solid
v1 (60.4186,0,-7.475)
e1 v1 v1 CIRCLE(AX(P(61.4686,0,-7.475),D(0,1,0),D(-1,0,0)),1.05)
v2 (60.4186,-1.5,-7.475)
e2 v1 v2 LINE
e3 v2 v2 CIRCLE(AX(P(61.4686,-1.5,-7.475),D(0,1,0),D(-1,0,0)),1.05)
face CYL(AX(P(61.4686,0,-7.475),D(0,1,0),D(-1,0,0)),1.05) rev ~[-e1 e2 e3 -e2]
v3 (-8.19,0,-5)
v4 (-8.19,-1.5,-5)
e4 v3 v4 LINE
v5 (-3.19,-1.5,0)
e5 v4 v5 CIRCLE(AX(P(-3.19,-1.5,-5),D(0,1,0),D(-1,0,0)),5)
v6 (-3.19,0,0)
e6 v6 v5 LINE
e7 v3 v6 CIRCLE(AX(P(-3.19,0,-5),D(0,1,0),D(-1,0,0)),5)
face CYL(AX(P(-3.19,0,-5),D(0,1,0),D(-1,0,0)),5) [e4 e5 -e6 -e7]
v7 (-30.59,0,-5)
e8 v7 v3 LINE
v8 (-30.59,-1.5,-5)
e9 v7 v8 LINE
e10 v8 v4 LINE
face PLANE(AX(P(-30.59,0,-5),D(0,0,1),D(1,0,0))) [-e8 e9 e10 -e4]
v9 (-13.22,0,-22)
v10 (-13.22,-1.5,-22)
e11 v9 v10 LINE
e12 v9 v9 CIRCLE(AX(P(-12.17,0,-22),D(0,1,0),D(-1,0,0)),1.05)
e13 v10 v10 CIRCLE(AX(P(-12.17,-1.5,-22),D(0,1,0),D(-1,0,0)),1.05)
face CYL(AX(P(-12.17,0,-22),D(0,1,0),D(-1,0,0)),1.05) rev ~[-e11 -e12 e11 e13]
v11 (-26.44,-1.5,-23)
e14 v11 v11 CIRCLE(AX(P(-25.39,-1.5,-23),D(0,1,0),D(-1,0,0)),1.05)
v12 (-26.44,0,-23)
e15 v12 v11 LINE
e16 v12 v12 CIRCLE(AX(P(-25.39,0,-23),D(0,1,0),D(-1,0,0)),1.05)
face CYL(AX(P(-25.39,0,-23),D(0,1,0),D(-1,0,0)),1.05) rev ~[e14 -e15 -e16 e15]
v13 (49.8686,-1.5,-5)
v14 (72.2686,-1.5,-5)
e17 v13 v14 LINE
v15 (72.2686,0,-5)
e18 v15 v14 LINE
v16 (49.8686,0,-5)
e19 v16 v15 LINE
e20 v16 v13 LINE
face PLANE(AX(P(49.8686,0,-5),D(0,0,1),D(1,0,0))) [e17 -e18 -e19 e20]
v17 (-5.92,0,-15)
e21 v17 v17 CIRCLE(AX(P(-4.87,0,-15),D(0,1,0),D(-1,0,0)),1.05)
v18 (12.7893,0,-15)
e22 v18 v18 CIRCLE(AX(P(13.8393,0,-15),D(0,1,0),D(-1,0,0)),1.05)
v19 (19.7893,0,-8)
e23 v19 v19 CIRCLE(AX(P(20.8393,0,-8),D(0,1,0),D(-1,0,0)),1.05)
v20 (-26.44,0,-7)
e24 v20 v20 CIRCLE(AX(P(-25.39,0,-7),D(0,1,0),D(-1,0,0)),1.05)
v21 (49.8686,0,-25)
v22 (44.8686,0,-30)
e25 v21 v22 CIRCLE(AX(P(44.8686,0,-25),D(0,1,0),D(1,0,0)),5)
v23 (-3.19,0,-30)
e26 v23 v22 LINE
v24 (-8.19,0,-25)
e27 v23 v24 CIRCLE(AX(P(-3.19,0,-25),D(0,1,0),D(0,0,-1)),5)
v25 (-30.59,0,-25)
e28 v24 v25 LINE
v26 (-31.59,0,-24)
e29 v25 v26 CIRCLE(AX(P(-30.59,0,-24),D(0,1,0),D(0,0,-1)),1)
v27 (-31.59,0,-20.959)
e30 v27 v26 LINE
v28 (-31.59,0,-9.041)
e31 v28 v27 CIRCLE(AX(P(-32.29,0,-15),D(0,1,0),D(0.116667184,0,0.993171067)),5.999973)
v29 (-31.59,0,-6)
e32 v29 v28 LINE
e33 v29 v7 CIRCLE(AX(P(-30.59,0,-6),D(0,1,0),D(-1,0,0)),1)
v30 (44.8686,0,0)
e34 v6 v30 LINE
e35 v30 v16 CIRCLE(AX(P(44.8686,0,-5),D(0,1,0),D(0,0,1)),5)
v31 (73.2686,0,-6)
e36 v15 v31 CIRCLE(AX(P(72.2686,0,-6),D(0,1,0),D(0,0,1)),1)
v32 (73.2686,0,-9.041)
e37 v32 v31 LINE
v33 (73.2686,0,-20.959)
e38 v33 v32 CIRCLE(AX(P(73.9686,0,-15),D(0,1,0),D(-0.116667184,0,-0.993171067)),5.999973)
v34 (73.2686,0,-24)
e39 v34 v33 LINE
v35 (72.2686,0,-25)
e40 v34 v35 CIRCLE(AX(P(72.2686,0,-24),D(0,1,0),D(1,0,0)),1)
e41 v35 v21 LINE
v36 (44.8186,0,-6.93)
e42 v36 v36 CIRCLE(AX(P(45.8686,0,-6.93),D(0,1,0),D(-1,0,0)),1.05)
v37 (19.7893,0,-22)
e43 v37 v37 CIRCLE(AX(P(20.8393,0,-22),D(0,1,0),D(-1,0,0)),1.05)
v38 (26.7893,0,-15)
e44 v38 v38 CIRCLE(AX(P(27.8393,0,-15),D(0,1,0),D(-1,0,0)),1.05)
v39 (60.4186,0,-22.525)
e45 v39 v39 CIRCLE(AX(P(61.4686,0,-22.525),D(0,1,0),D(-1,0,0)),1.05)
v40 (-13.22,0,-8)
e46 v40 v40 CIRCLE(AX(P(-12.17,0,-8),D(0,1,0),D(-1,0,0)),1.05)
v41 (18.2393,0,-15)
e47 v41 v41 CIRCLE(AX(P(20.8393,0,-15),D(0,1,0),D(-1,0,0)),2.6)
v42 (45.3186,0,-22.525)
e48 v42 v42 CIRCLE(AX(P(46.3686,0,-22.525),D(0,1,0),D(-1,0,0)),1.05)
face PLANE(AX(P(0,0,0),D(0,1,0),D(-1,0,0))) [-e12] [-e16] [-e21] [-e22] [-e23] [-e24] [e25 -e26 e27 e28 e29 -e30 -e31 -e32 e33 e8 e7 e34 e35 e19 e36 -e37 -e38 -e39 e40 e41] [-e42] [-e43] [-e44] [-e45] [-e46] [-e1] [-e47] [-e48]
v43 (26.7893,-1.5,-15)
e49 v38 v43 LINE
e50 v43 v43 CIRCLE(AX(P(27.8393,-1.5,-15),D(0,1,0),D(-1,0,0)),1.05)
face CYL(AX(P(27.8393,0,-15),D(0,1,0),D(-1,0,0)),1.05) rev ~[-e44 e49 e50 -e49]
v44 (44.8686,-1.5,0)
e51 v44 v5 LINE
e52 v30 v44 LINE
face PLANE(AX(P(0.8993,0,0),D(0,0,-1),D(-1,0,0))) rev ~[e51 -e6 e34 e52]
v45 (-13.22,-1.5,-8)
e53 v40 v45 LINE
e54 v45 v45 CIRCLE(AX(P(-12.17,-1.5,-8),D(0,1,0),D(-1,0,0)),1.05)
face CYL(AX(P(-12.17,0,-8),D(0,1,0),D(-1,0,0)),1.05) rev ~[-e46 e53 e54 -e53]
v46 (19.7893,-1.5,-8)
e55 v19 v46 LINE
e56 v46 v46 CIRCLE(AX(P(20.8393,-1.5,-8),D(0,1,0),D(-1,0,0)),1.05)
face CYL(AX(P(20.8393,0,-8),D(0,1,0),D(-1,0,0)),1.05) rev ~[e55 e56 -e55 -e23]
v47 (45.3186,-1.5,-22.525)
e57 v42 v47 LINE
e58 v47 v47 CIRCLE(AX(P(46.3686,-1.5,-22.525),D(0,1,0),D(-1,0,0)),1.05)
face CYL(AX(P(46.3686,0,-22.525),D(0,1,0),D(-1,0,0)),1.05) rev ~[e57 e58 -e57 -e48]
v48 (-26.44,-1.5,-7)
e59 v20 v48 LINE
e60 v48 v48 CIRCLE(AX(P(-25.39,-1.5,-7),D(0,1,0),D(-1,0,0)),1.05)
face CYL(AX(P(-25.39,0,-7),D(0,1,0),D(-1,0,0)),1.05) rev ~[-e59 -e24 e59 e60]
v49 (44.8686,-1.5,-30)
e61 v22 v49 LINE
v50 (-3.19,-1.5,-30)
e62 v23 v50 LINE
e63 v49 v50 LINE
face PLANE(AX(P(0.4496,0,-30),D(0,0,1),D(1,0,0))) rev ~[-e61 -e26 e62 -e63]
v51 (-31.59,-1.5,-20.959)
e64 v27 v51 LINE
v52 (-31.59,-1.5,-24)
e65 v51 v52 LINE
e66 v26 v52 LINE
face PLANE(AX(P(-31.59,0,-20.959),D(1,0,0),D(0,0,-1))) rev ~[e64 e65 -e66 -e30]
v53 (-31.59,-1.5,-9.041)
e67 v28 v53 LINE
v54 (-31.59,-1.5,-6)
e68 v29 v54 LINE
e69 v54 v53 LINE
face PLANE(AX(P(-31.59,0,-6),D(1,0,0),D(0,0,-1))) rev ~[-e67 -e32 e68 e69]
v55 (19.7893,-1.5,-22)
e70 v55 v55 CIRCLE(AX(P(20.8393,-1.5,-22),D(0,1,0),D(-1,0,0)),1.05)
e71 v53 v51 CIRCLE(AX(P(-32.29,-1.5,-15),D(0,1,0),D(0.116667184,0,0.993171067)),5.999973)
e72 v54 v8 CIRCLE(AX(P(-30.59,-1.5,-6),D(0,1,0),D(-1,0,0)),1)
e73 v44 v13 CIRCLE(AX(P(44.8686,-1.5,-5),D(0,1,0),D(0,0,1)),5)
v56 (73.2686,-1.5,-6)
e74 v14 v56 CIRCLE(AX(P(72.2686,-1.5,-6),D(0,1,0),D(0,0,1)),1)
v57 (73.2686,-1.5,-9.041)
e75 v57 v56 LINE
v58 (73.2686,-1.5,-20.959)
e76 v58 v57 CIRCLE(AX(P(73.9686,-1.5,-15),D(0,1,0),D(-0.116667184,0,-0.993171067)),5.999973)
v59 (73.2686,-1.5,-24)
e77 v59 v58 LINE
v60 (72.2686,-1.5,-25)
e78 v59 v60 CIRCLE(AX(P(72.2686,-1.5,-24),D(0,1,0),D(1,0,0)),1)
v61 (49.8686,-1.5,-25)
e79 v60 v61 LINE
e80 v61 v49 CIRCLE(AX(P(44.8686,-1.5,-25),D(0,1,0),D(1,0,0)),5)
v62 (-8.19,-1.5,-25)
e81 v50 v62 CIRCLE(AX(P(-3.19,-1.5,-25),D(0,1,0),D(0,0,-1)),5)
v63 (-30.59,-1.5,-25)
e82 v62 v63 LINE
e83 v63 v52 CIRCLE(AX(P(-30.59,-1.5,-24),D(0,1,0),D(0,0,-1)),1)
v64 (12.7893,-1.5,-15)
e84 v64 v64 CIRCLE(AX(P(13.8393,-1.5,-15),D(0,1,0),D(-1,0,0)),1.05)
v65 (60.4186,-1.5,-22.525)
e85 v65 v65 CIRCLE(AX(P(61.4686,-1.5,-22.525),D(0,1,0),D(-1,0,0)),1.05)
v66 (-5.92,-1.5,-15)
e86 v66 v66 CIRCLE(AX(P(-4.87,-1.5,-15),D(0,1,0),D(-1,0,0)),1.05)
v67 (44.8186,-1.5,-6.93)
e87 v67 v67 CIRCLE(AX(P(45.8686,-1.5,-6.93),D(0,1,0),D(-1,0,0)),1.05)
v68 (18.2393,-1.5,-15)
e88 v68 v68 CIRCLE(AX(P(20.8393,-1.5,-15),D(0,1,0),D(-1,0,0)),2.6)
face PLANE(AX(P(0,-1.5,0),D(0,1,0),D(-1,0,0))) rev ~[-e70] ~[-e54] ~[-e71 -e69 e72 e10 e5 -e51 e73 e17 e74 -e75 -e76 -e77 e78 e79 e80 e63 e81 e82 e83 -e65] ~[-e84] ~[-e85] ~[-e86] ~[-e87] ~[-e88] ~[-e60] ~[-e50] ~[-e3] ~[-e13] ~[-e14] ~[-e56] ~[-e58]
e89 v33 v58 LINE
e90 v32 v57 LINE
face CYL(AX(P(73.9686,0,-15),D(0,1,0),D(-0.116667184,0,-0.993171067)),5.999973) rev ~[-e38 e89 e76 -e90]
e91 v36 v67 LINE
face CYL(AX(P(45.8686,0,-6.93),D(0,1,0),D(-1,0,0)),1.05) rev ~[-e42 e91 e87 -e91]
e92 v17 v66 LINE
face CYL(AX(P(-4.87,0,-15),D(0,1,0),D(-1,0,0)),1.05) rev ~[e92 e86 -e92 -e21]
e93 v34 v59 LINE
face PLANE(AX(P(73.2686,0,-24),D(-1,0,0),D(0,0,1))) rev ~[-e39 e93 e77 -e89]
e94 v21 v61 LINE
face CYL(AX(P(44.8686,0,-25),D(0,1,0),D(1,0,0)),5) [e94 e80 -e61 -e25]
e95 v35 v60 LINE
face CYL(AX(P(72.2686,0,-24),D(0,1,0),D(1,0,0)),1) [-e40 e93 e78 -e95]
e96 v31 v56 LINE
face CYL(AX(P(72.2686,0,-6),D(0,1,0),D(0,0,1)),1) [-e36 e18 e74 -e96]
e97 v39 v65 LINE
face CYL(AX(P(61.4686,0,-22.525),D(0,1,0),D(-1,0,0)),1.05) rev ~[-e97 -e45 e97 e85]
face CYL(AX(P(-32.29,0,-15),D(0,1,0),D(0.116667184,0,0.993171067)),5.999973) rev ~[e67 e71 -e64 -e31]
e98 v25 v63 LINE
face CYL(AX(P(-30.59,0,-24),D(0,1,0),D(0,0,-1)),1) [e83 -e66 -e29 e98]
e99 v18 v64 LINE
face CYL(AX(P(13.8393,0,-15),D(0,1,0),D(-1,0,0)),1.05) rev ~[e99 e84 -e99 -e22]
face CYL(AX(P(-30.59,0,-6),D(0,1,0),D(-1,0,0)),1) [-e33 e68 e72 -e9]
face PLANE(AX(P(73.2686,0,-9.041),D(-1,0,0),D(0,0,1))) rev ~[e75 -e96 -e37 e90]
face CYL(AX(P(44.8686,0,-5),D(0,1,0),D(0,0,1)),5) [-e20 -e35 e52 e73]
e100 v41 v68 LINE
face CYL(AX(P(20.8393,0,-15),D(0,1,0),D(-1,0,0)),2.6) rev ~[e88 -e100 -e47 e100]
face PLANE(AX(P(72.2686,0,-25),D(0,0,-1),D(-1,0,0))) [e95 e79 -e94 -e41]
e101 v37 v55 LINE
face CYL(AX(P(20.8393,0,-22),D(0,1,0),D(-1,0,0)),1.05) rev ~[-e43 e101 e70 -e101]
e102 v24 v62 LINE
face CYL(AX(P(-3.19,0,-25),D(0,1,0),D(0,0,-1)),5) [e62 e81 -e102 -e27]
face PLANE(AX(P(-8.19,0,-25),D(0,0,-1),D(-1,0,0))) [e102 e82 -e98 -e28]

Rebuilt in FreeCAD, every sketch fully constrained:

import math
import FreeCAD as App
import Part
import Sketcher

V = App.Vector

doc = App.newDocument("Part")
body = doc.addObject("PartDesign::Body", "Body")

sketch1 = body.newObject("Sketcher::SketchObject", "Sketch")
sketch1.AttachmentSupport = (doc.getObject("XZ_Plane"), [""])
sketch1.MapMode = "FlatFace"
sketch1.addGeometry(Part.ArcOfCircle(Part.Circle(V(-3.2, -25, 0), V(0, 0, 1), 5), math.radians(180), math.radians(270)), False)
sketch1.addGeometry(Part.LineSegment(V(-8.2, -25, 0), V(-30.6, -25, 0)), False)
sketch1.addGeometry(Part.ArcOfCircle(Part.Circle(V(-30.6, -24, 0), V(0, 0, 1), 1), math.radians(180), math.radians(270)), False)
sketch1.addGeometry(Part.LineSegment(V(-31.6, -24, 0), V(-31.6, -21, 0)), False)
sketch1.addGeometry(Part.ArcOfCircle(Part.Circle(V(-32.3, -15, 0), V(0, 0, 1), 6), math.radians(-83), math.radians(83)), False)
sketch1.addGeometry(Part.LineSegment(V(-31.6, -9, 0), V(-31.6, -6, 0)), False)
sketch1.addGeometry(Part.ArcOfCircle(Part.Circle(V(-30.6, -6, 0), V(0, 0, 1), 1), math.radians(90), math.radians(180)), False)
sketch1.addGeometry(Part.LineSegment(V(-30.6, -5, 0), V(-8.2, -5, 0)), False)
sketch1.addGeometry(Part.ArcOfCircle(Part.Circle(V(-3.2, -5, 0), V(0, 0, 1), 5), math.radians(90), math.radians(180)), False)
sketch1.addGeometry(Part.LineSegment(V(-3.2, 0, 0), V(44.9, 0, 0)), False)
sketch1.addGeometry(Part.ArcOfCircle(Part.Circle(V(44.9, -5, 0), V(0, 0, 1), 5), math.radians(0), math.radians(90)), False)
sketch1.addGeometry(Part.LineSegment(V(49.9, -5, 0), V(72.3, -5, 0)), False)
sketch1.addGeometry(Part.ArcOfCircle(Part.Circle(V(72.3, -6, 0), V(0, 0, 1), 1), math.radians(0), math.radians(90)), False)
sketch1.addGeometry(Part.LineSegment(V(73.3, -6, 0), V(73.3, -9, 0)), False)
sketch1.addGeometry(Part.ArcOfCircle(Part.Circle(V(74, -15, 0), V(0, 0, 1), 6), math.radians(97), math.radians(263)), False)
sketch1.addGeometry(Part.LineSegment(V(73.3, -21, 0), V(73.3, -24, 0)), False)
sketch1.addGeometry(Part.ArcOfCircle(Part.Circle(V(72.3, -24, 0), V(0, 0, 1), 1), math.radians(-90), math.radians(0)), False)
sketch1.addGeometry(Part.LineSegment(V(72.3, -25, 0), V(49.9, -25, 0)), False)
sketch1.addGeometry(Part.ArcOfCircle(Part.Circle(V(44.9, -25, 0), V(0, 0, 1), 5), math.radians(-90), math.radians(0)), False)
sketch1.addGeometry(Part.LineSegment(V(44.9, -30, 0), V(-3.2, -30, 0)), False)
sketch1.addGeometry(Part.Circle(V(20.8, -8, 0), V(0, 0, 1), 1.1), False)
sketch1.addGeometry(Part.Circle(V(20.8, -22, 0), V(0, 0, 1), 1.1), False)
sketch1.addGeometry(Part.Circle(V(27.8, -15, 0), V(0, 0, 1), 1.1), False)
sketch1.addGeometry(Part.Circle(V(20.8, -15, 0), V(0, 0, 1), 2.6), False)
sketch1.addGeometry(Part.Circle(V(13.8, -15, 0), V(0, 0, 1), 1.1), False)
sketch1.addGeometry(Part.Circle(V(-25.4, -7, 0), V(0, 0, 1), 1.1), False)
sketch1.addGeometry(Part.Circle(V(-25.4, -23, 0), V(0, 0, 1), 1.1), False)
sketch1.addGeometry(Part.Circle(V(-12.2, -22, 0), V(0, 0, 1), 1.1), False)
sketch1.addGeometry(Part.Circle(V(-4.9, -15, 0), V(0, 0, 1), 1.1), False)
sketch1.addGeometry(Part.Circle(V(-12.2, -8, 0), V(0, 0, 1), 1.1), False)
sketch1.addGeometry(Part.Circle(V(45.9, -6.9, 0), V(0, 0, 1), 1.1), False)
sketch1.addGeometry(Part.Circle(V(61.5, -22.5, 0), V(0, 0, 1), 1.1), False)
sketch1.addGeometry(Part.Circle(V(46.4, -22.5, 0), V(0, 0, 1), 1.1), False)
sketch1.addGeometry(Part.Circle(V(61.5, -7.5, 0), V(0, 0, 1), 1.1), False)
sketch1.addConstraint(Sketcher.Constraint("Coincident", 0, 1, 1, 1))
sketch1.addConstraint(Sketcher.Constraint("Tangent", 1, 2, 2, 2))
sketch1.addConstraint(Sketcher.Constraint("Tangent", 2, 1, 3, 1))
sketch1.addConstraint(Sketcher.Constraint("Coincident", 3, 2, 4, 1))
sketch1.addConstraint(Sketcher.Constraint("Coincident", 4, 2, 5, 1))
sketch1.addConstraint(Sketcher.Constraint("Tangent", 5, 2, 6, 2))
sketch1.addConstraint(Sketcher.Constraint("Tangent", 6, 1, 7, 1))
sketch1.addConstraint(Sketcher.Constraint("Coincident", 7, 2, 8, 2))
sketch1.addConstraint(Sketcher.Constraint("Tangent", 8, 1, 9, 1))
sketch1.addConstraint(Sketcher.Constraint("Tangent", 9, 2, 10, 2))
sketch1.addConstraint(Sketcher.Constraint("Coincident", 10, 1, 11, 1))
sketch1.addConstraint(Sketcher.Constraint("Tangent", 11, 2, 12, 2))
sketch1.addConstraint(Sketcher.Constraint("Tangent", 12, 1, 13, 1))
sketch1.addConstraint(Sketcher.Constraint("Coincident", 13, 2, 14, 1))
sketch1.addConstraint(Sketcher.Constraint("Coincident", 14, 2, 15, 1))
sketch1.addConstraint(Sketcher.Constraint("Tangent", 15, 2, 16, 2))
sketch1.addConstraint(Sketcher.Constraint("Tangent", 16, 1, 17, 1))
sketch1.addConstraint(Sketcher.Constraint("Coincident", 17, 2, 18, 2))
sketch1.addConstraint(Sketcher.Constraint("Tangent", 18, 1, 19, 1))
sketch1.addConstraint(Sketcher.Constraint("Tangent", 19, 2, 0, 2))
sketch1.addConstraint(Sketcher.Constraint("Horizontal", 1))
sketch1.addConstraint(Sketcher.Constraint("Vertical", 3))
sketch1.addConstraint(Sketcher.Constraint("Vertical", 5))
sketch1.addConstraint(Sketcher.Constraint("Horizontal", 7))
sketch1.addConstraint(Sketcher.Constraint("Horizontal", 9))
sketch1.addConstraint(Sketcher.Constraint("Horizontal", 11))
sketch1.addConstraint(Sketcher.Constraint("Vertical", 13))
sketch1.addConstraint(Sketcher.Constraint("Vertical", 15))
sketch1.addConstraint(Sketcher.Constraint("Horizontal", 17))
sketch1.addConstraint(Sketcher.Constraint("Horizontal", 19))
sketch1.addConstraint(Sketcher.Constraint("Equal", 2, 6))
sketch1.addConstraint(Sketcher.Constraint("Equal", 0, 8))
sketch1.addConstraint(Sketcher.Constraint("Equal", 8, 10))
sketch1.addConstraint(Sketcher.Constraint("Equal", 6, 12))
sketch1.addConstraint(Sketcher.Constraint("Equal", 4, 14))
sketch1.addConstraint(Sketcher.Constraint("Equal", 12, 16))
sketch1.addConstraint(Sketcher.Constraint("Equal", 10, 18))
sketch1.addConstraint(Sketcher.Constraint("Equal", 20, 21))
sketch1.addConstraint(Sketcher.Constraint("Equal", 21, 22))
sketch1.addConstraint(Sketcher.Constraint("Equal", 22, 24))
sketch1.addConstraint(Sketcher.Constraint("Equal", 24, 25))
sketch1.addConstraint(Sketcher.Constraint("Equal", 25, 26))
sketch1.addConstraint(Sketcher.Constraint("Equal", 26, 27))
sketch1.addConstraint(Sketcher.Constraint("Equal", 27, 28))
sketch1.addConstraint(Sketcher.Constraint("Equal", 28, 29))
sketch1.addConstraint(Sketcher.Constraint("Equal", 29, 30))
sketch1.addConstraint(Sketcher.Constraint("Equal", 30, 31))
sketch1.addConstraint(Sketcher.Constraint("Equal", 31, 32))
sketch1.addConstraint(Sketcher.Constraint("Equal", 32, 33))
sketch1.addConstraint(Sketcher.Constraint("PointOnObject", 8, 1, -1))
sketch1.addConstraint(Sketcher.Constraint("Horizontal", 6, 3, 12, 3))
sketch1.addConstraint(Sketcher.Constraint("Horizontal", 4, 3, 14, 3))
sketch1.addConstraint(Sketcher.Constraint("Horizontal", 2, 3, 16, 3))
sketch1.addConstraint(Sketcher.Constraint("Horizontal", 14, 3, 22, 3))
sketch1.addConstraint(Sketcher.Constraint("Horizontal", 22, 3, 23, 3))
sketch1.addConstraint(Sketcher.Constraint("Horizontal", 23, 3, 24, 3))
sketch1.addConstraint(Sketcher.Constraint("Horizontal", 21, 3, 27, 3))
sketch1.addConstraint(Sketcher.Constraint("Horizontal", 24, 3, 28, 3))
sketch1.addConstraint(Sketcher.Constraint("Horizontal", 20, 3, 29, 3))
sketch1.addConstraint(Sketcher.Constraint("Horizontal", 31, 3, 32, 3))
sketch1.addConstraint(Sketcher.Constraint("Horizontal", 18, 3, 0, 1))
sketch1.addConstraint(Sketcher.Constraint("Horizontal", 10, 3, 6, 1))
sketch1.addConstraint(Sketcher.Constraint("Horizontal", 4, 2, 13, 2))
sketch1.addConstraint(Sketcher.Constraint("Horizontal", 3, 2, 14, 2))
sketch1.addConstraint(Sketcher.Constraint("Vertical", 2, 3, 6, 3))
sketch1.addConstraint(Sketcher.Constraint("Vertical", 0, 3, 8, 3))
sketch1.addConstraint(Sketcher.Constraint("Vertical", 10, 3, 18, 3))
sketch1.addConstraint(Sketcher.Constraint("Vertical", 20, 3, 21, 3))
sketch1.addConstraint(Sketcher.Constraint("Vertical", 21, 3, 23, 3))
sketch1.addConstraint(Sketcher.Constraint("Vertical", 25, 3, 26, 3))
sketch1.addConstraint(Sketcher.Constraint("Vertical", 27, 3, 29, 3))
sketch1.addConstraint(Sketcher.Constraint("Vertical", 31, 3, 33, 3))
sketch1.addConstraint(Sketcher.Constraint("Equal", 7, 11))
sketch1.addConstraint(Sketcher.Constraint("Equal", 3, 5))
sketch1.addConstraint(Sketcher.Constraint("Radius", 0, 5.0))
sketch1.addConstraint(Sketcher.Constraint("Radius", 2, 1.0))
sketch1.addConstraint(Sketcher.Constraint("Radius", 4, 6.0))
sketch1.addConstraint(Sketcher.Constraint("Diameter", 20, 2.1))
sketch1.addConstraint(Sketcher.Constraint("Diameter", 23, 5.2))
sketch1.addConstraint(Sketcher.Constraint("DistanceX", 1, 2, 1, 1, 22.4))
sketch1.addConstraint(Sketcher.Constraint("DistanceY", 0, 3, -1, 1, 25.0))
sketch1.addConstraint(Sketcher.Constraint("DistanceY", 20, 3, -1, 1, 8.0))
sketch1.addConstraint(Sketcher.Constraint("DistanceY", 21, 3, -1, 1, 22.0))
sketch1.addConstraint(Sketcher.Constraint("DistanceY", 25, 3, -1, 1, 7.0))
sketch1.addConstraint(Sketcher.Constraint("DistanceY", 26, 3, -1, 1, 23.0))
sketch1.addConstraint(Sketcher.Constraint("DistanceX", 20, 3, 22, 3, 7.0))
sketch1.addConstraint(Sketcher.Constraint("DistanceX", 24, 3, 23, 3, 7.0))
sketch1.addConstraint(Sketcher.Constraint("DistanceX", 10, 3, 30, 3, 1.0))
sketch1.addConstraint(Sketcher.Constraint("DistanceX", 4, 3, 2, 3, 1.7))
sketch1.addConstraint(Sketcher.Constraint("DistanceX", 6, 3, 25, 3, 5.2))
sketch1.addConstraint(Sketcher.Constraint("DistanceX", 27, 3, 28, 3, 7.3))
sketch1.addConstraint(Sketcher.Constraint("DistanceX", 31, 3, 16, 3, 10.8))
sketch1.addConstraint(Sketcher.Constraint("DistanceX", 18, 3, 32, 3, 1.5))
sketch1.addConstraint(Sketcher.Constraint("DistanceX", 0, 3, -1, 1, 3.19))
sketch1.addConstraint(Sketcher.Constraint("DistanceX", 27, 3, -1, 1, 12.17))
sketch1.addConstraint(Sketcher.Constraint("DistanceY", 30, 3, -1, 1, 6.93))
sketch1.addConstraint(Sketcher.Constraint("DistanceY", 31, 3, 33, 3, 15.05))
sketch1.addConstraint(Sketcher.Constraint("DistanceX", 9, 1, 9, 2, 48.0586))
sketch1.addConstraint(Sketcher.Constraint("DistanceY", 31, 3, -1, 1, 22.525))
sketch1.addConstraint(Sketcher.Constraint("DistanceX", -1, 1, 20, 3, 20.8393))
pad1 = body.newObject("PartDesign::Pad", "Pad")
pad1.Profile = sketch1
pad1.Length = 1.5

doc.recompute()
